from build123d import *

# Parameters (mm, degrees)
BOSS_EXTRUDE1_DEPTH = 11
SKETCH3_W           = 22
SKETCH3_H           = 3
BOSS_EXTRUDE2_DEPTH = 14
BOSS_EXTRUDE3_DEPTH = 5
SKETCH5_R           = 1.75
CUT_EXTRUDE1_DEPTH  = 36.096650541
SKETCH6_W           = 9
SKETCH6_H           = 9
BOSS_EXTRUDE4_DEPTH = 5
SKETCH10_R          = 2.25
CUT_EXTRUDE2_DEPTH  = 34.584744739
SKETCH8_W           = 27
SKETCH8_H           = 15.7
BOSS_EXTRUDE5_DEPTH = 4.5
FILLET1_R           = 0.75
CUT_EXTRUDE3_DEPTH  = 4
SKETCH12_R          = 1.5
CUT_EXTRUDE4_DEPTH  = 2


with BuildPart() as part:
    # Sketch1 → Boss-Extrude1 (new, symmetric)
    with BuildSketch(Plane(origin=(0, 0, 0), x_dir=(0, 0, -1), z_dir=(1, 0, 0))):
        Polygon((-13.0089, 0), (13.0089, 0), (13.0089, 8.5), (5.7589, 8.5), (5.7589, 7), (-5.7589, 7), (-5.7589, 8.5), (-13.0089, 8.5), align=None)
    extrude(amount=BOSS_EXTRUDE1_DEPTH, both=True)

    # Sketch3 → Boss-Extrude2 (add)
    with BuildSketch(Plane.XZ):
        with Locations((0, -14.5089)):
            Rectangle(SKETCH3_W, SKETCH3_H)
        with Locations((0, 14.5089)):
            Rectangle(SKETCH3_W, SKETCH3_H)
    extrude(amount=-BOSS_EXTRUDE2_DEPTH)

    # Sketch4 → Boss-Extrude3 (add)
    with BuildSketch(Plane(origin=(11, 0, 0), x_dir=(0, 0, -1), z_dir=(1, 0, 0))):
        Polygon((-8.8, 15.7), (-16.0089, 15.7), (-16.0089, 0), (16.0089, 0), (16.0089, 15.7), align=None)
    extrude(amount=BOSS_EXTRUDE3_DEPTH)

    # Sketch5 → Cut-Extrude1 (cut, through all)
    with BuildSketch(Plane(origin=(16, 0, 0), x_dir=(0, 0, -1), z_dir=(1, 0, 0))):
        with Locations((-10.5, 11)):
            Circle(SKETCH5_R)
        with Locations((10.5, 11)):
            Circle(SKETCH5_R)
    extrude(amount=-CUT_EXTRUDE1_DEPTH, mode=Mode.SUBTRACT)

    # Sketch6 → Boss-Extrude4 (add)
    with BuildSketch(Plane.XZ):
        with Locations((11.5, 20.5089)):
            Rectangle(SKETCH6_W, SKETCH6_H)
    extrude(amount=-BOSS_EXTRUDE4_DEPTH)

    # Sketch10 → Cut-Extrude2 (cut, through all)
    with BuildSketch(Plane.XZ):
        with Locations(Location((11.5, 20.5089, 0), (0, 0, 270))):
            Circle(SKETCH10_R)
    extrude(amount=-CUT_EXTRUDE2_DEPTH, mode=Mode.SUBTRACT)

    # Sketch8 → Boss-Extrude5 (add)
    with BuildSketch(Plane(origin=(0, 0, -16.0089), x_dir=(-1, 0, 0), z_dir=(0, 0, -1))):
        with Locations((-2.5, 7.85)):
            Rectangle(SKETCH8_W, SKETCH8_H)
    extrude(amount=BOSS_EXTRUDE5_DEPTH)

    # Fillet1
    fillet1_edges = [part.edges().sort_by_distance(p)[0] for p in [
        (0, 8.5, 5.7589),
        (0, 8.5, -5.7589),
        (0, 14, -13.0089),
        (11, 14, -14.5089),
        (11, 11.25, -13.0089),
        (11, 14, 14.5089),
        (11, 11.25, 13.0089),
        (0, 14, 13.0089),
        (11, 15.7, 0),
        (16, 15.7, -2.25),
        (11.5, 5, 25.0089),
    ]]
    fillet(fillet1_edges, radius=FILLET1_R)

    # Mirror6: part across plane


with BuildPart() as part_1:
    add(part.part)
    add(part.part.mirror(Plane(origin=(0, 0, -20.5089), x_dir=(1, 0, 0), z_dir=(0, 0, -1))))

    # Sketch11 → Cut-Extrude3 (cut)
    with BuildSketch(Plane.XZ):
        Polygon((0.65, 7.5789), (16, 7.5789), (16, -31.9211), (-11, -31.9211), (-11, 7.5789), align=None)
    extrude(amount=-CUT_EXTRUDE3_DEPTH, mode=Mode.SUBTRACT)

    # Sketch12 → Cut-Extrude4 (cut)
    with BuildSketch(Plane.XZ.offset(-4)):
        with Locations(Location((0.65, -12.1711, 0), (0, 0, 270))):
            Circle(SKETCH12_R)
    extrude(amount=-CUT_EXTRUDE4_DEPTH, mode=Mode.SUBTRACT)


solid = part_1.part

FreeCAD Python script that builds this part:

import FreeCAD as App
import Part
import Sketcher
from FreeCAD import Vector


def edges_at(feature, points):
    """Names of the edges that pass closest to the given points."""
    edges = feature.Shape.Edges
    near = lambda p: min(range(len(edges)), key=lambda i: edges[i].distToShape(Part.Vertex(*p))[0])
    return sorted({f"Edge{near(p) + 1}" for p in points})

doc = App.newDocument("Part")
body = doc.addObject("PartDesign::Body", "Body")

sketch1 = doc.addObject("Sketcher::SketchObject", "Sketch")
body.addObject(sketch1)
sketch1.AttachmentSupport = (doc.YZ_Plane, [""])
sketch1.MapMode = "FlatFace"
sketch1.addGeometry([
    Part.LineSegment(Vector(0, 13, 0), Vector(0, -13, 0)),
    Part.LineSegment(Vector(0, -13, 0), Vector(8.5, -13, 0)),
    Part.LineSegment(Vector(8.5, -13, 0), Vector(8.5, -5.8, 0)),
    Part.LineSegment(Vector(8.5, -5.8, 0), Vector(7, -5.8, 0)),
    Part.LineSegment(Vector(7, -5.8, 0), Vector(7, 5.8, 0)),
    Part.LineSegment(Vector(7, 5.8, 0), Vector(8.5, 5.8, 0)),
    Part.LineSegment(Vector(8.5, 5.8, 0), Vector(8.5, 13, 0)),
    Part.LineSegment(Vector(8.5, 13, 0), Vector(0, 13, 0)),
], False)
sketch1.addConstraint([
    Sketcher.Constraint("Coincident", 0, 2, 1, 1),
    Sketcher.Constraint("Coincident", 1, 2, 2, 1),
    Sketcher.Constraint("Coincident", 2, 2, 3, 1),
    Sketcher.Constraint("Coincident", 3, 2, 4, 1),
    Sketcher.Constraint("Coincident", 4, 2, 5, 1),
    Sketcher.Constraint("Coincident", 5, 2, 6, 1),
    Sketcher.Constraint("Coincident", 6, 2, 7, 1),
    Sketcher.Constraint("Coincident", 7, 2, 0, 1),
    Sketcher.Constraint("Vertical", 0),
    Sketcher.Constraint("Horizontal", 1),
    Sketcher.Constraint("Vertical", 2),
    Sketcher.Constraint("Horizontal", 3),
    Sketcher.Constraint("Vertical", 4),
    Sketcher.Constraint("Horizontal", 5),
    Sketcher.Constraint("Vertical", 6),
    Sketcher.Constraint("Horizontal", 7),
    Sketcher.Constraint("Symmetric", 0, 2, 7, 2, -1, 1),
    Sketcher.Constraint("Symmetric", 2, 2, 5, 2, -1),
    Sketcher.Constraint("DistanceX", 1, 1, 1, 2, 8.5),
    Sketcher.Constraint("DistanceX", 3, 2, 3, 1, 1.5),
    Sketcher.Constraint("DistanceY", 2, 1, 2, 2, 7.25),
    Sketcher.Constraint("DistanceY", 0, 2, 0, 1, 26.0178),
])
pad1 = doc.addObject("PartDesign::Pad", "Pad")
body.addObject(pad1)
pad1.Profile = sketch1
pad1.Length = 22
pad1.Midplane = True

sketch2 = doc.addObject("Sketcher::SketchObject", "Sketch001")
body.addObject(sketch2)
sketch2.AttachmentSupport = (doc.XZ_Plane, [""])
sketch2.MapMode = "FlatFace"
sketch2.addGeometry([
    Part.LineSegment(Vector(-11, -13, 0), Vector(-11, -16, 0)),
    Part.LineSegment(Vector(-11, -16, 0), Vector(11, -16, 0)),
    Part.LineSegment(Vector(11, -16, 0), Vector(11, -13, 0)),
    Part.LineSegment(Vector(11, -13, 0), Vector(-11, -13, 0)),
    Part.LineSegment(Vector(-11, 16, 0), Vector(-11, 13, 0)),
    Part.LineSegment(Vector(-11, 13, 0), Vector(11, 13, 0)),
    Part.LineSegment(Vector(11, 13, 0), Vector(11, 16, 0)),
    Part.LineSegment(Vector(11, 16, 0), Vector(-11, 16, 0)),
], False)
sketch2.addConstraint([
    Sketcher.Constraint("Coincident", 0, 2, 1, 1),
    Sketcher.Constraint("Coincident", 1, 2, 2, 1),
    Sketcher.Constraint("Coincident", 2, 2, 3, 1),
    Sketcher.Constraint("Coincident", 3, 2, 0, 1),
    Sketcher.Constraint("Coincident", 4, 2, 5, 1),
    Sketcher.Constraint("Coincident", 5, 2, 6, 1),
    Sketcher.Constraint("Coincident", 6, 2, 7, 1),
    Sketcher.Constraint("Coincident", 7, 2, 4, 1),
    Sketcher.Constraint("Vertical", 0),
    Sketcher.Constraint("Horizontal", 1),
    Sketcher.Constraint("Vertical", 2),
    Sketcher.Constraint("Horizontal", 3),
    Sketcher.Constraint("Vertical", 4),
    Sketcher.Constraint("Horizontal", 5),
    Sketcher.Constraint("Vertical", 6),
    Sketcher.Constraint("Horizontal", 7),
    Sketcher.Constraint("Symmetric", 2, 2, 4, 2, -1, 1),
    Sketcher.Constraint("Symmetric", 0, 2, 6, 2, -1, 1),
    Sketcher.Constraint("Vertical", 3, 2, 4, 2),
    Sketcher.Constraint("DistanceX", 1, 1, 1, 2, 22.0),
    Sketcher.Constraint("DistanceY", 0, 2, 0, 1, 3.0),
    Sketcher.Constraint("DistanceY", 0, 2, -1, 1, 16.0089),
])
pad2 = doc.addObject("PartDesign::Pad", "Pad001")
body.addObject(pad2)
pad2.Profile = sketch2
pad2.Length = 14
pad2.Reversed = True

sketch3 = doc.addObject("Sketcher::SketchObject", "Sketch002")
body.addObject(sketch3)
sketch3.AttachmentSupport = (doc.YZ_Plane, [""])
sketch3.MapMode = "FlatFace"
sketch3.AttachmentOffset = App.Placement(Vector(0, 0, 11), App.Rotation())
sketch3.addGeometry([
    Part.LineSegment(Vector(16, 16, 0), Vector(0, 16, 0)),
    Part.LineSegment(Vector(0, 16, 0), Vector(0, -16, 0)),
    Part.LineSegment(Vector(0, -16, 0), Vector(16, -16, 0)),
    Part.LineSegment(Vector(16, -16, 0), Vector(16, 16, 0)),
], False)
sketch3.addConstraint([
    Sketcher.Constraint("Coincident", 0, 2, 1, 1),
    Sketcher.Constraint("Coincident", 1, 2, 2, 1),
    Sketcher.Constraint("Coincident", 2, 2, 3, 1),
    Sketcher.Constraint("Coincident", 3, 2, 0, 1),
    Sketcher.Constraint("Horizontal", 0),
    Sketcher.Constraint("Vertical", 1),
    Sketcher.Constraint("Horizontal", 2),
    Sketcher.Constraint("Vertical", 3),
    Sketcher.Constraint("Symmetric", 0, 2, 1, 2, -1, 1),
    Sketcher.Constraint("DistanceX", 0, 2, 0, 1, 15.7),
    Sketcher.Constraint("DistanceY", 1, 2, 1, 1, 32.0178),
])
pad3 = doc.addObject("PartDesign::Pad", "Pad002")
body.addObject(pad3)
pad3.Profile = sketch3
pad3.Length = 5

sketch4 = doc.addObject("Sketcher::SketchObject", "Sketch003")
body.addObject(sketch4)
sketch4.AttachmentSupport = (doc.YZ_Plane, [""])
sketch4.MapMode = "FlatFace"
sketch4.AttachmentOffset = App.Placement(Vector(0, 0, 16), App.Rotation())
sketch4.addGeometry([
    Part.Circle(Vector(11, 10.5, 0), Vector(0, 0, 1), 1.8),
    Part.Circle(Vector(11, -10.5, 0), Vector(0, 0, 1), 1.8),
], False)
sketch4.addConstraint([
    Sketcher.Constraint("Equal", 0, 1),
    Sketcher.Constraint("Symmetric", 0, 3, 1, 3, -1),
    Sketcher.Constraint("Diameter", 0, 3.5),
    Sketcher.Constraint("DistanceX", -1, 1, 0, 3, 11.0),
    Sketcher.Constraint("DistanceY", 1, 3, 0, 3, 21.0),
])
pocket1 = doc.addObject("PartDesign::Pocket", "Pocket")
body.addObject(pocket1)
pocket1.Profile = sketch4
pocket1.Type = "ThroughAll"

sketch5 = doc.addObject("Sketcher::SketchObject", "Sketch004")
body.addObject(sketch5)
sketch5.AttachmentSupport = (doc.XZ_Plane, [""])
sketch5.MapMode = "FlatFace"
sketch5.addGeometry([
    Part.LineSegment(Vector(7, 25, 0), Vector(7, 16, 0)),
    Part.LineSegment(Vector(7, 16, 0), Vector(16, 16, 0)),
    Part.LineSegment(Vector(16, 16, 0), Vector(16, 25, 0)),
    Part.LineSegment(Vector(16, 25, 0), Vector(7, 25, 0)),
], False)
sketch5.addConstraint([
    Sketcher.Constraint("Coincident", 0, 2, 1, 1),
    Sketcher.Constraint("Coincident", 1, 2, 2, 1),
    Sketcher.Constraint("Coincident", 2, 2, 3, 1),
    Sketcher.Constraint("Coincident", 3, 2, 0, 1),
    Sketcher.Constraint("Vertical", 0),
    Sketcher.Constraint("Horizontal", 1),
    Sketcher.Constraint("Vertical", 2),
    Sketcher.Constraint("Horizontal", 3),
    Sketcher.Constraint("Equal", 3, 0),
    Sketcher.Constraint("DistanceX", 1, 1, 1, 2, 9.0),
    Sketcher.Constraint("DistanceX", -1, 1, 0, 2, 7.0),
    Sketcher.Constraint("DistanceY", -1, 1, 0, 2, 16.0089),
])
pad4 = doc.addObject("PartDesign::Pad", "Pad003")
body.addObject(pad4)
pad4.Profile = sketch5
pad4.Length = 5
pad4.Reversed = True

sketch6 = doc.addObject("Sketcher::SketchObject", "Sketch005")
body.addObject(sketch6)
sketch6.AttachmentSupport = (doc.XZ_Plane, [""])
sketch6.MapMode = "FlatFace"
sketch6.addGeometry(Part.Circle(Vector(11.5, 20.5, 0), Vector(0, 0, 1), 2.2), False)
sketch6.addConstraint([
    Sketcher.Constraint("Diameter", 0, 4.5),
    Sketcher.Constraint("DistanceX", -1, 1, 0, 3, 11.5),
    Sketcher.Constraint("DistanceY", -1, 1, 0, 3, 20.5089),
])
pocket2 = doc.addObject("PartDesign::Pocket", "Pocket001")
body.addObject(pocket2)
pocket2.Profile = sketch6
pocket2.Type = "ThroughAll"

sketch7 = doc.addObject("Sketcher::SketchObject", "Sketch006")
body.addObject(sketch7)
sketch7.AttachmentSupport = (doc.XY_Plane, [""])
sketch7.MapMode = "FlatFace"
sketch7.AttachmentOffset = App.Placement(Vector(0, 0, -16.0089), App.Rotation())
sketch7.addGeometry([
    Part.LineSegment(Vector(16, 16, 0), Vector(16, 0, 0)),
    Part.LineSegment(Vector(16, 0, 0), Vector(-11, 0, 0)),
    Part.LineSegment(Vector(-11, 0, 0), Vector(-11, 16, 0)),
    Part.LineSegment(Vector(-11, 16, 0), Vector(16, 16, 0)),
], False)
sketch7.addConstraint([
    Sketcher.Constraint("Coincident", 0, 2, 1, 1),
    Sketcher.Constraint("Coincident", 1, 2, 2, 1),
    Sketcher.Constraint("Coincident", 2, 2, 3, 1),
    Sketcher.Constraint("Coincident", 3, 2, 0, 1),
    Sketcher.Constraint("Vertical", 0),
    Sketcher.Constraint("Horizontal", 1),
    Sketcher.Constraint("Vertical", 2),
    Sketcher.Constraint("Horizontal", 3),
    Sketcher.Constraint("PointOnObject", 0, 2, -1),
    Sketcher.Constraint("DistanceX", 1, 2, 1, 1, 27.0),
    Sketcher.Constraint("DistanceY", 0, 2, 0, 1, 15.7),
    Sketcher.Constraint("DistanceX", -1, 1, 0, 2, 16.0),
])
pad5 = doc.addObject("PartDesign::Pad", "Pad004")
body.addObject(pad5)
pad5.Profile = sketch7
pad5.Length = 4.5
pad5.Reversed = True
doc.recompute()

fillet = doc.addObject("PartDesign::Fillet", "Fillet")
body.addObject(fillet)
fillet.Base = (pad5, edges_at(pad5, [
    (0, 8.5, 5.759),
    (0, 8.5, -5.759),
    (0, 14, -13.009),
    (11, 14, -14.509),
    (11, 11.25, -13.009),
    (11, 14, 14.509),
    (11, 11.25, 13.009),
    (0, 14, 13.009),
    (11, 15.7, 0),
    (16, 15.7, -2.25),
    (11.5, 5, 25.009),
]))
fillet.Radius = 0.75
body2 = doc.addObject("PartDesign::Body", "Body001")
doc.recompute()

body2.BaseFeature = body
doc.recompute()

mirroring = doc.addObject("Part::Mirroring", "Mirroring")
mirroring.Source = body
mirroring.Base = Vector(0, 0, -20.5089)
mirroring.Normal = Vector(0, 0, -1)
body3 = doc.addObject("PartDesign::Body", "Body002")
body3.BaseFeature = mirroring
boolean = doc.addObject("PartDesign::Boolean", "Boolean")
body2.addObject(boolean)
boolean.Type = "Fuse"
boolean.addObjects([body3])
doc.recompute()

sketch8 = doc.addObject("Sketcher::SketchObject", "Sketch007")
body2.addObject(sketch8)
sketch8.AttachmentSupport = (doc.getObject("XZ_Plane001"), [""])
sketch8.MapMode = "FlatFace"
sketch8.addGeometry([
    Part.LineSegment(Vector(16, 8, 0), Vector(-11, 8, 0)),
    Part.LineSegment(Vector(-11, 8, 0), Vector(-11, -32, 0)),
    Part.LineSegment(Vector(-11, -32, 0), Vector(16, -32, 0)),
    Part.LineSegment(Vector(16, -32, 0), Vector(16, 8, 0)),
], False)
sketch8.addConstraint([
    Sketcher.Constraint("Coincident", 0, 2, 1, 1),
    Sketcher.Constraint("Coincident", 1, 2, 2, 1),
    Sketcher.Constraint("Coincident", 2, 2, 3, 1),
    Sketcher.Constraint("Coincident", 3, 2, 0, 1),
    Sketcher.Constraint("Horizontal", 0),
    Sketcher.Constraint("Vertical", 1),
    Sketcher.Constraint("Horizontal", 2),
    Sketcher.Constraint("Vertical", 3),
    Sketcher.Constraint("DistanceX", 0, 2, 0, 1, 27.0),
    Sketcher.Constraint("DistanceY", 1, 2, 1, 1, 39.5),
    Sketcher.Constraint("DistanceX", 0, 2, -1, 1, 11.0),
    Sketcher.Constraint("DistanceY", -1, 1, 0, 2, 7.5789),
])
pocket3 = doc.addObject("PartDesign::Pocket", "Pocket002")
body2.addObject(pocket3)
pocket3.Profile = sketch8
pocket3.Length = 4

sketch9 = doc.addObject("Sketcher::SketchObject", "Sketch008")
body2.addObject(sketch9)
sketch9.AttachmentSupport = (doc.getObject("XZ_Plane001"), [""])
sketch9.MapMode = "FlatFace"
sketch9.AttachmentOffset = App.Placement(Vector(0, 0, -4), App.Rotation())
sketch9.addGeometry(Part.Circle(Vector(0.7, -12.2, 0), Vector(0, 0, 1), 1.5), False)
sketch9.addConstraint([
    Sketcher.Constraint("Diameter", 0, 3.0),
    Sketcher.Constraint("DistanceX", -1, 1, 0, 3, 0.65),
    Sketcher.Constraint("DistanceY", 0, 3, -1, 1, 12.1711),
])
pocket4 = doc.addObject("PartDesign::Pocket", "Pocket003")
body2.addObject(pocket4)
pocket4.Profile = sketch9
pocket4.Length = 2
mirroring.Visibility = False

doc.recompute()
